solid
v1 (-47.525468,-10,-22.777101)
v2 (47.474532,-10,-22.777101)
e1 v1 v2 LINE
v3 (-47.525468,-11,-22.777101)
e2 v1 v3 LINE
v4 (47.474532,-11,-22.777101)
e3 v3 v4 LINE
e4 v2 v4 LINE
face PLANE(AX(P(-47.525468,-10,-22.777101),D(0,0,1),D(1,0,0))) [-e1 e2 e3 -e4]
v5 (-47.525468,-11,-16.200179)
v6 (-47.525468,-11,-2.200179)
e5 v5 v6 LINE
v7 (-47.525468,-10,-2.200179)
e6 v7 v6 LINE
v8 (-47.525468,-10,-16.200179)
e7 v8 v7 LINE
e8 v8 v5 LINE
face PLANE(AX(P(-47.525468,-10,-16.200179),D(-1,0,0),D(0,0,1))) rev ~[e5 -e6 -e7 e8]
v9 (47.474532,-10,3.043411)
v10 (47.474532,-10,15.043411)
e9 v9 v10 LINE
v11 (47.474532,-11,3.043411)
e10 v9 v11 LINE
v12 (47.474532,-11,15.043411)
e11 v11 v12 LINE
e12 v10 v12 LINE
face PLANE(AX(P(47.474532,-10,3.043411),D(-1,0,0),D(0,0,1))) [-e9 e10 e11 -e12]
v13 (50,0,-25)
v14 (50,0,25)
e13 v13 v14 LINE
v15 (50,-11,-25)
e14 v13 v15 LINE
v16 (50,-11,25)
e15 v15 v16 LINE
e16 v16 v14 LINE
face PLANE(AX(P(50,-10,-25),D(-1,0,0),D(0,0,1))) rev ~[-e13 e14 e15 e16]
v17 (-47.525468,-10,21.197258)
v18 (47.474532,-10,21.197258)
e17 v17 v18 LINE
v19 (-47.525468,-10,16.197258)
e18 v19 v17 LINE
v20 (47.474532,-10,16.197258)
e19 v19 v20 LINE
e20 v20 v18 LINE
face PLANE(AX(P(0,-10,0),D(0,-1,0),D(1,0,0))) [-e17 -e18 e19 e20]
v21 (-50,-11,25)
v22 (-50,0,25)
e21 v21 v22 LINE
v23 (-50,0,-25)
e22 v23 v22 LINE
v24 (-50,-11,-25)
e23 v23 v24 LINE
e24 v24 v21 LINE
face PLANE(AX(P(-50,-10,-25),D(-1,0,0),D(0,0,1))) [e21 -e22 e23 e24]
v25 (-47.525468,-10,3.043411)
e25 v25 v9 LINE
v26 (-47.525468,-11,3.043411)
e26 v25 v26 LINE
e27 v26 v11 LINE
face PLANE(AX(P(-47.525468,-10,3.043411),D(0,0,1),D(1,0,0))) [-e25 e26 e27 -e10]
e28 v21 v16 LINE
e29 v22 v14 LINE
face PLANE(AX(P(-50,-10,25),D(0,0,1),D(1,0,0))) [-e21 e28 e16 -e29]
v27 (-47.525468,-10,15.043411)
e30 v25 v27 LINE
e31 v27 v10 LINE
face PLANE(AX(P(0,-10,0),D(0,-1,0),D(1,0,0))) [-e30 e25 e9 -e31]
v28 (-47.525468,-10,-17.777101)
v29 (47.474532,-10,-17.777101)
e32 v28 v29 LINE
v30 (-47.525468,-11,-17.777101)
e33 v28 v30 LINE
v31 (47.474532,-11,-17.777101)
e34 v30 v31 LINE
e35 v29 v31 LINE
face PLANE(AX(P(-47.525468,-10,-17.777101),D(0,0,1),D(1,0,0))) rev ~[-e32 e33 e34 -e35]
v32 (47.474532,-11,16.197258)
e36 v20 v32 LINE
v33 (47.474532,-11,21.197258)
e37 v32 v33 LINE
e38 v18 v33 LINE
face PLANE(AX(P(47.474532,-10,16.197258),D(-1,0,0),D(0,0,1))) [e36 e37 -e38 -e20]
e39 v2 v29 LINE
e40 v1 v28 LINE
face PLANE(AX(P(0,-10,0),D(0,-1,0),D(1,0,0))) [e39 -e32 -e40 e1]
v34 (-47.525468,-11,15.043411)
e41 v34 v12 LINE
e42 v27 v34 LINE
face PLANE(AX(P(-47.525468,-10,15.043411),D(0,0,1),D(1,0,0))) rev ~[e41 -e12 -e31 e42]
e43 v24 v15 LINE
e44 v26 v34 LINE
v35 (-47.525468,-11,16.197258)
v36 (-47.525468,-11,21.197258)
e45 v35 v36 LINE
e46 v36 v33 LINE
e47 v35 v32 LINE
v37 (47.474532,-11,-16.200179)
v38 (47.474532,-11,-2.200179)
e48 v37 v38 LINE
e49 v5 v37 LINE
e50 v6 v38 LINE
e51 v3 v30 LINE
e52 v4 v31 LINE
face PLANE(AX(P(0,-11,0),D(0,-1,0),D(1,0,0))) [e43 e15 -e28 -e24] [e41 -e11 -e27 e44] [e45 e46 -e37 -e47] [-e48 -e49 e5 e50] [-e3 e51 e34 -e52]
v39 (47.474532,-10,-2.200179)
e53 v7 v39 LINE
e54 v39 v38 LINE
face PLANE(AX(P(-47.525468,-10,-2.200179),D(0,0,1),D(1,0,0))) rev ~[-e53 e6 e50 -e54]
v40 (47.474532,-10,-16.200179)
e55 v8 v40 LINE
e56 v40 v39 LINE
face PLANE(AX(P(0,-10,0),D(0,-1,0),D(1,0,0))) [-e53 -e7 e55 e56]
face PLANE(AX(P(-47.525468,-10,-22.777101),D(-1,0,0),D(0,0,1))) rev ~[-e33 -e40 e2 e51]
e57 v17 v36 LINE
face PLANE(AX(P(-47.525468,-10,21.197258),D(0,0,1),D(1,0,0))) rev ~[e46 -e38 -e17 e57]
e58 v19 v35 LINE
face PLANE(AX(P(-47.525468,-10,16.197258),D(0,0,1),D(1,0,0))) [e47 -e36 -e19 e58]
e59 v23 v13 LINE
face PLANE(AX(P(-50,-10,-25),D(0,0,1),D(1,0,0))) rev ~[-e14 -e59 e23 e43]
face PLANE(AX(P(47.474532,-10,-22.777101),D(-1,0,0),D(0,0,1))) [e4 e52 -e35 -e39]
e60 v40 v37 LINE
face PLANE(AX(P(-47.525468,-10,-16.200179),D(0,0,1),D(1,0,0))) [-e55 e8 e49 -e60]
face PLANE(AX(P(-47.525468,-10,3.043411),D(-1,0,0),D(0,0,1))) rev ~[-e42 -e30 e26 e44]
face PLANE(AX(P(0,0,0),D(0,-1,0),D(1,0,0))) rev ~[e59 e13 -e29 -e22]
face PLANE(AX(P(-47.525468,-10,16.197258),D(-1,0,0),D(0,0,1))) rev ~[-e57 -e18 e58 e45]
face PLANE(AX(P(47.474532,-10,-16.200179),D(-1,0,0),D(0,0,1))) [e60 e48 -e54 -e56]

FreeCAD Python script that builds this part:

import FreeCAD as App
import Part
import Sketcher


def add_polygon(sketch, points):
    """Adds a closed chain of lines whose ends are joined by coincident constraints."""
    first, n = sketch.GeometryCount, len(points)
    for a, b in zip(points, points[1:] + points[:1]):
        sketch.addGeometry(Part.LineSegment(App.Vector(*a, 0), App.Vector(*b, 0)), False)
    for i in range(n):
        sketch.addConstraint(Sketcher.Constraint("Coincident", first + i, 2, first + (i + 1) % n, 1))

doc = App.newDocument("Part")
body = doc.addObject("PartDesign::Body", "Body")

sketch1 = body.newObject("Sketcher::SketchObject", "Sketch")
sketch1.AttachmentSupport = (doc.getObject("XZ_Plane"), [""])
sketch1.MapMode = "FlatFace"
add_polygon(sketch1, [(-50, 25), (-50, -25), (50, -25), (50, 25)])
sketch1.addConstraint([
    Sketcher.Constraint("Vertical", 0),
    Sketcher.Constraint("Horizontal", 1),
    Sketcher.Constraint("Vertical", 2),
    Sketcher.Constraint("Horizontal", 3),
    Sketcher.Constraint("Symmetric", 0, 2, 2, 2, -1, 1),
    Sketcher.Constraint("DistanceX", 1, 1, 1, 2, 100.0),
    Sketcher.Constraint("DistanceY", 0, 2, 0, 1, 50.0),
])
pad1 = body.newObject("PartDesign::Pad", "Pad")
pad1.Profile = sketch1
pad1.Length = 10

sketch2 = body.newObject("Sketcher::SketchObject", "Sketch001")
sketch2.AttachmentSupport = (doc.getObject("XZ_Plane"), [""])
sketch2.MapMode = "FlatFace"
sketch2.AttachmentOffset = App.Placement(App.Vector(0, 0, 10), App.Rotation())
add_polygon(sketch2, [(-50, 25), (-50, -25), (50, -25), (50, 25)])
add_polygon(sketch2, [(47, -23), (-48, -23), (-48, -18), (47, -18)])
add_polygon(sketch2, [(47, -16), (-48, -16), (-48, -2), (47, -2)])
add_polygon(sketch2, [(47, 3), (-48, 3), (-48, 15), (47, 15)])
add_polygon(sketch2, [(47, 16), (-48, 16), (-48, 21), (47, 21)])
sketch2.addConstraint([
    Sketcher.Constraint("Vertical", 0),
    Sketcher.Constraint("Horizontal", 1),
    Sketcher.Constraint("Vertical", 2),
    Sketcher.Constraint("Horizontal", 3),
    Sketcher.Constraint("Horizontal", 4),
    Sketcher.Constraint("Vertical", 5),
    Sketcher.Constraint("Horizontal", 6),
    Sketcher.Constraint("Vertical", 7),
    Sketcher.Constraint("Horizontal", 8),
    Sketcher.Constraint("Vertical", 9),
    Sketcher.Constraint("Horizontal", 10),
    Sketcher.Constraint("Vertical", 11),
    Sketcher.Constraint("Horizontal", 12),
    Sketcher.Constraint("Vertical", 13),
    Sketcher.Constraint("Horizontal", 14),
    Sketcher.Constraint("Vertical", 15),
    Sketcher.Constraint("Horizontal", 16),
    Sketcher.Constraint("Vertical", 17),
    Sketcher.Constraint("Horizontal", 18),
    Sketcher.Constraint("Vertical", 19),
    Sketcher.Constraint("Symmetric", 0, 2, 2, 2, -1, 1),
    Sketcher.Constraint("Vertical", 5, 2, 8, 2),
    Sketcher.Constraint("Vertical", 7, 2, 10, 2),
    Sketcher.Constraint("Vertical", 9, 2, 12, 2),
    Sketcher.Constraint("Vertical", 11, 2, 14, 2),
    Sketcher.Constraint("Vertical", 13, 2, 16, 2),
    Sketcher.Constraint("Vertical", 15, 2, 18, 2),
    Sketcher.Constraint("Equal", 7, 17),
    Sketcher.Constraint("DistanceX", 1, 1, 1, 2, 100.0),
    Sketcher.Constraint("DistanceX", 4, 2, 4, 1, 95.0),
    Sketcher.Constraint("DistanceY", 0, 2, 0, 1, 50.0),
    Sketcher.Constraint("DistanceY", 5, 1, 5, 2, 5.0),
    Sketcher.Constraint("DistanceY", 9, 1, 9, 2, 14.0),
    Sketcher.Constraint("DistanceY", 13, 1, 13, 2, 12.0),
    Sketcher.Constraint("DistanceY", 4, 2, -1, 1, 22.777101),
    Sketcher.Constraint("DistanceY", 8, 2, -1, 1, 16.200179),
    Sketcher.Constraint("DistanceY", -1, 1, 12, 2, 3.043411),
    Sketcher.Constraint("DistanceY", -1, 1, 16, 2, 16.197258),
    Sketcher.Constraint("DistanceX", 4, 2, -1, 1, 47.525468),
])
pad2 = body.newObject("PartDesign::Pad", "Pad001")
pad2.Profile = sketch2
pad2.Length = 1

doc.recompute()
